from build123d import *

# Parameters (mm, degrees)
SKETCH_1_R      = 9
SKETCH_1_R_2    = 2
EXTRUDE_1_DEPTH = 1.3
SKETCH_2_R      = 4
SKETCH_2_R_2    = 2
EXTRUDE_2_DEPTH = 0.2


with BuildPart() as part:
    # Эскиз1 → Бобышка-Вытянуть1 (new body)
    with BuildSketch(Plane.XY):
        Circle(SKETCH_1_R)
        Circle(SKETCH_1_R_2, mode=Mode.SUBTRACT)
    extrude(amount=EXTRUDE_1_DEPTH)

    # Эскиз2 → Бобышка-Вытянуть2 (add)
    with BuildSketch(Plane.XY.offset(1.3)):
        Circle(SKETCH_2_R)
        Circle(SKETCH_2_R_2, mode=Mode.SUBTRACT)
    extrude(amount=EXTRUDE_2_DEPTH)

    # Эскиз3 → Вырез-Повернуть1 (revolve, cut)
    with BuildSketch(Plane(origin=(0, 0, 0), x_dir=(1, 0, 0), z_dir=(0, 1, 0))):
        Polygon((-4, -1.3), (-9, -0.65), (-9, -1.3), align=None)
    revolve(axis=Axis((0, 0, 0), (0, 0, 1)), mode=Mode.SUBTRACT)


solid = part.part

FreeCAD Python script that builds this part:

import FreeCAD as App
import Part
import Sketcher

V = App.Vector


def add_polygon(sketch, points):
    """Adds a closed chain of lines whose ends are joined by coincident constraints."""
    first, n = sketch.GeometryCount, len(points)
    for a, b in zip(points, points[1:] + points[:1]):
        sketch.addGeometry(Part.LineSegment(App.Vector(*a, 0), App.Vector(*b, 0)), False)
    for i in range(n):
        sketch.addConstraint(Sketcher.Constraint("Coincident", first + i, 2, first + (i + 1) % n, 1))

doc = App.newDocument("Part")
body = doc.addObject("PartDesign::Body", "Body")

sketch1 = body.newObject("Sketcher::SketchObject", "Sketch")
sketch1.AttachmentSupport = (doc.getObject("XY_Plane"), [""])
sketch1.MapMode = "FlatFace"
sketch1.addGeometry([
    Part.Circle(V(0, 0, 0), V(0, 0, 1), 9),
    Part.Circle(V(0, 0, 0), V(0, 0, 1), 2),
], False)
sketch1.addConstraint([
    Sketcher.Constraint("Coincident", 0, 3, -1, 1),
    Sketcher.Constraint("Coincident", 1, 3, -1, 1),
    Sketcher.Constraint("Diameter", 0, 18.0),
    Sketcher.Constraint("Diameter", 1, 4.0),
])
pad1 = body.newObject("PartDesign::Pad", "Pad")
pad1.Profile = sketch1
pad1.Length = 1.3

sketch2 = body.newObject("Sketcher::SketchObject", "Sketch001")
sketch2.AttachmentSupport = (doc.getObject("XY_Plane"), [""])
sketch2.MapMode = "FlatFace"
sketch2.AttachmentOffset = App.Placement(V(0, 0, 1.3), App.Rotation())
sketch2.addGeometry([
    Part.Circle(V(0, 0, 0), V(0, 0, 1), 4),
    Part.Circle(V(0, 0, 0), V(0, 0, 1), 2),
], False)
sketch2.addConstraint([
    Sketcher.Constraint("Coincident", 0, 3, -1, 1),
    Sketcher.Constraint("Coincident", 1, 3, -1, 1),
    Sketcher.Constraint("Diameter", 0, 8.0),
    Sketcher.Constraint("Diameter", 1, 4.0),
])
pad2 = body.newObject("PartDesign::Pad", "Pad001")
pad2.Profile = sketch2
pad2.Length = 0.2

sketch3 = body.newObject("Sketcher::SketchObject", "Sketch002")
sketch3.AttachmentSupport = (doc.getObject("XZ_Plane"), [""])
sketch3.MapMode = "FlatFace"
add_polygon(sketch3, [(-4, 1.3), (-9, 0.65), (-9, 1.3)])
sketch3.addConstraint([
    Sketcher.Constraint("Vertical", 1),
    Sketcher.Constraint("Horizontal", 2),
    Sketcher.Constraint("DistanceX", 2, 1, 2, 2, 5.0),
    Sketcher.Constraint("DistanceX", 0, 2, -1, 1, 9.0),
    Sketcher.Constraint("DistanceY", 1, 1, 1, 2, 0.65),
    Sketcher.Constraint("DistanceY", -1, 1, 1, 2, 1.3),
])
groove = body.newObject("PartDesign::Groove", "Groove")
groove.Profile = sketch3
groove.ReferenceAxis = (sketch3, ["V_Axis"])
groove.Angle = 360

doc.recompute()
